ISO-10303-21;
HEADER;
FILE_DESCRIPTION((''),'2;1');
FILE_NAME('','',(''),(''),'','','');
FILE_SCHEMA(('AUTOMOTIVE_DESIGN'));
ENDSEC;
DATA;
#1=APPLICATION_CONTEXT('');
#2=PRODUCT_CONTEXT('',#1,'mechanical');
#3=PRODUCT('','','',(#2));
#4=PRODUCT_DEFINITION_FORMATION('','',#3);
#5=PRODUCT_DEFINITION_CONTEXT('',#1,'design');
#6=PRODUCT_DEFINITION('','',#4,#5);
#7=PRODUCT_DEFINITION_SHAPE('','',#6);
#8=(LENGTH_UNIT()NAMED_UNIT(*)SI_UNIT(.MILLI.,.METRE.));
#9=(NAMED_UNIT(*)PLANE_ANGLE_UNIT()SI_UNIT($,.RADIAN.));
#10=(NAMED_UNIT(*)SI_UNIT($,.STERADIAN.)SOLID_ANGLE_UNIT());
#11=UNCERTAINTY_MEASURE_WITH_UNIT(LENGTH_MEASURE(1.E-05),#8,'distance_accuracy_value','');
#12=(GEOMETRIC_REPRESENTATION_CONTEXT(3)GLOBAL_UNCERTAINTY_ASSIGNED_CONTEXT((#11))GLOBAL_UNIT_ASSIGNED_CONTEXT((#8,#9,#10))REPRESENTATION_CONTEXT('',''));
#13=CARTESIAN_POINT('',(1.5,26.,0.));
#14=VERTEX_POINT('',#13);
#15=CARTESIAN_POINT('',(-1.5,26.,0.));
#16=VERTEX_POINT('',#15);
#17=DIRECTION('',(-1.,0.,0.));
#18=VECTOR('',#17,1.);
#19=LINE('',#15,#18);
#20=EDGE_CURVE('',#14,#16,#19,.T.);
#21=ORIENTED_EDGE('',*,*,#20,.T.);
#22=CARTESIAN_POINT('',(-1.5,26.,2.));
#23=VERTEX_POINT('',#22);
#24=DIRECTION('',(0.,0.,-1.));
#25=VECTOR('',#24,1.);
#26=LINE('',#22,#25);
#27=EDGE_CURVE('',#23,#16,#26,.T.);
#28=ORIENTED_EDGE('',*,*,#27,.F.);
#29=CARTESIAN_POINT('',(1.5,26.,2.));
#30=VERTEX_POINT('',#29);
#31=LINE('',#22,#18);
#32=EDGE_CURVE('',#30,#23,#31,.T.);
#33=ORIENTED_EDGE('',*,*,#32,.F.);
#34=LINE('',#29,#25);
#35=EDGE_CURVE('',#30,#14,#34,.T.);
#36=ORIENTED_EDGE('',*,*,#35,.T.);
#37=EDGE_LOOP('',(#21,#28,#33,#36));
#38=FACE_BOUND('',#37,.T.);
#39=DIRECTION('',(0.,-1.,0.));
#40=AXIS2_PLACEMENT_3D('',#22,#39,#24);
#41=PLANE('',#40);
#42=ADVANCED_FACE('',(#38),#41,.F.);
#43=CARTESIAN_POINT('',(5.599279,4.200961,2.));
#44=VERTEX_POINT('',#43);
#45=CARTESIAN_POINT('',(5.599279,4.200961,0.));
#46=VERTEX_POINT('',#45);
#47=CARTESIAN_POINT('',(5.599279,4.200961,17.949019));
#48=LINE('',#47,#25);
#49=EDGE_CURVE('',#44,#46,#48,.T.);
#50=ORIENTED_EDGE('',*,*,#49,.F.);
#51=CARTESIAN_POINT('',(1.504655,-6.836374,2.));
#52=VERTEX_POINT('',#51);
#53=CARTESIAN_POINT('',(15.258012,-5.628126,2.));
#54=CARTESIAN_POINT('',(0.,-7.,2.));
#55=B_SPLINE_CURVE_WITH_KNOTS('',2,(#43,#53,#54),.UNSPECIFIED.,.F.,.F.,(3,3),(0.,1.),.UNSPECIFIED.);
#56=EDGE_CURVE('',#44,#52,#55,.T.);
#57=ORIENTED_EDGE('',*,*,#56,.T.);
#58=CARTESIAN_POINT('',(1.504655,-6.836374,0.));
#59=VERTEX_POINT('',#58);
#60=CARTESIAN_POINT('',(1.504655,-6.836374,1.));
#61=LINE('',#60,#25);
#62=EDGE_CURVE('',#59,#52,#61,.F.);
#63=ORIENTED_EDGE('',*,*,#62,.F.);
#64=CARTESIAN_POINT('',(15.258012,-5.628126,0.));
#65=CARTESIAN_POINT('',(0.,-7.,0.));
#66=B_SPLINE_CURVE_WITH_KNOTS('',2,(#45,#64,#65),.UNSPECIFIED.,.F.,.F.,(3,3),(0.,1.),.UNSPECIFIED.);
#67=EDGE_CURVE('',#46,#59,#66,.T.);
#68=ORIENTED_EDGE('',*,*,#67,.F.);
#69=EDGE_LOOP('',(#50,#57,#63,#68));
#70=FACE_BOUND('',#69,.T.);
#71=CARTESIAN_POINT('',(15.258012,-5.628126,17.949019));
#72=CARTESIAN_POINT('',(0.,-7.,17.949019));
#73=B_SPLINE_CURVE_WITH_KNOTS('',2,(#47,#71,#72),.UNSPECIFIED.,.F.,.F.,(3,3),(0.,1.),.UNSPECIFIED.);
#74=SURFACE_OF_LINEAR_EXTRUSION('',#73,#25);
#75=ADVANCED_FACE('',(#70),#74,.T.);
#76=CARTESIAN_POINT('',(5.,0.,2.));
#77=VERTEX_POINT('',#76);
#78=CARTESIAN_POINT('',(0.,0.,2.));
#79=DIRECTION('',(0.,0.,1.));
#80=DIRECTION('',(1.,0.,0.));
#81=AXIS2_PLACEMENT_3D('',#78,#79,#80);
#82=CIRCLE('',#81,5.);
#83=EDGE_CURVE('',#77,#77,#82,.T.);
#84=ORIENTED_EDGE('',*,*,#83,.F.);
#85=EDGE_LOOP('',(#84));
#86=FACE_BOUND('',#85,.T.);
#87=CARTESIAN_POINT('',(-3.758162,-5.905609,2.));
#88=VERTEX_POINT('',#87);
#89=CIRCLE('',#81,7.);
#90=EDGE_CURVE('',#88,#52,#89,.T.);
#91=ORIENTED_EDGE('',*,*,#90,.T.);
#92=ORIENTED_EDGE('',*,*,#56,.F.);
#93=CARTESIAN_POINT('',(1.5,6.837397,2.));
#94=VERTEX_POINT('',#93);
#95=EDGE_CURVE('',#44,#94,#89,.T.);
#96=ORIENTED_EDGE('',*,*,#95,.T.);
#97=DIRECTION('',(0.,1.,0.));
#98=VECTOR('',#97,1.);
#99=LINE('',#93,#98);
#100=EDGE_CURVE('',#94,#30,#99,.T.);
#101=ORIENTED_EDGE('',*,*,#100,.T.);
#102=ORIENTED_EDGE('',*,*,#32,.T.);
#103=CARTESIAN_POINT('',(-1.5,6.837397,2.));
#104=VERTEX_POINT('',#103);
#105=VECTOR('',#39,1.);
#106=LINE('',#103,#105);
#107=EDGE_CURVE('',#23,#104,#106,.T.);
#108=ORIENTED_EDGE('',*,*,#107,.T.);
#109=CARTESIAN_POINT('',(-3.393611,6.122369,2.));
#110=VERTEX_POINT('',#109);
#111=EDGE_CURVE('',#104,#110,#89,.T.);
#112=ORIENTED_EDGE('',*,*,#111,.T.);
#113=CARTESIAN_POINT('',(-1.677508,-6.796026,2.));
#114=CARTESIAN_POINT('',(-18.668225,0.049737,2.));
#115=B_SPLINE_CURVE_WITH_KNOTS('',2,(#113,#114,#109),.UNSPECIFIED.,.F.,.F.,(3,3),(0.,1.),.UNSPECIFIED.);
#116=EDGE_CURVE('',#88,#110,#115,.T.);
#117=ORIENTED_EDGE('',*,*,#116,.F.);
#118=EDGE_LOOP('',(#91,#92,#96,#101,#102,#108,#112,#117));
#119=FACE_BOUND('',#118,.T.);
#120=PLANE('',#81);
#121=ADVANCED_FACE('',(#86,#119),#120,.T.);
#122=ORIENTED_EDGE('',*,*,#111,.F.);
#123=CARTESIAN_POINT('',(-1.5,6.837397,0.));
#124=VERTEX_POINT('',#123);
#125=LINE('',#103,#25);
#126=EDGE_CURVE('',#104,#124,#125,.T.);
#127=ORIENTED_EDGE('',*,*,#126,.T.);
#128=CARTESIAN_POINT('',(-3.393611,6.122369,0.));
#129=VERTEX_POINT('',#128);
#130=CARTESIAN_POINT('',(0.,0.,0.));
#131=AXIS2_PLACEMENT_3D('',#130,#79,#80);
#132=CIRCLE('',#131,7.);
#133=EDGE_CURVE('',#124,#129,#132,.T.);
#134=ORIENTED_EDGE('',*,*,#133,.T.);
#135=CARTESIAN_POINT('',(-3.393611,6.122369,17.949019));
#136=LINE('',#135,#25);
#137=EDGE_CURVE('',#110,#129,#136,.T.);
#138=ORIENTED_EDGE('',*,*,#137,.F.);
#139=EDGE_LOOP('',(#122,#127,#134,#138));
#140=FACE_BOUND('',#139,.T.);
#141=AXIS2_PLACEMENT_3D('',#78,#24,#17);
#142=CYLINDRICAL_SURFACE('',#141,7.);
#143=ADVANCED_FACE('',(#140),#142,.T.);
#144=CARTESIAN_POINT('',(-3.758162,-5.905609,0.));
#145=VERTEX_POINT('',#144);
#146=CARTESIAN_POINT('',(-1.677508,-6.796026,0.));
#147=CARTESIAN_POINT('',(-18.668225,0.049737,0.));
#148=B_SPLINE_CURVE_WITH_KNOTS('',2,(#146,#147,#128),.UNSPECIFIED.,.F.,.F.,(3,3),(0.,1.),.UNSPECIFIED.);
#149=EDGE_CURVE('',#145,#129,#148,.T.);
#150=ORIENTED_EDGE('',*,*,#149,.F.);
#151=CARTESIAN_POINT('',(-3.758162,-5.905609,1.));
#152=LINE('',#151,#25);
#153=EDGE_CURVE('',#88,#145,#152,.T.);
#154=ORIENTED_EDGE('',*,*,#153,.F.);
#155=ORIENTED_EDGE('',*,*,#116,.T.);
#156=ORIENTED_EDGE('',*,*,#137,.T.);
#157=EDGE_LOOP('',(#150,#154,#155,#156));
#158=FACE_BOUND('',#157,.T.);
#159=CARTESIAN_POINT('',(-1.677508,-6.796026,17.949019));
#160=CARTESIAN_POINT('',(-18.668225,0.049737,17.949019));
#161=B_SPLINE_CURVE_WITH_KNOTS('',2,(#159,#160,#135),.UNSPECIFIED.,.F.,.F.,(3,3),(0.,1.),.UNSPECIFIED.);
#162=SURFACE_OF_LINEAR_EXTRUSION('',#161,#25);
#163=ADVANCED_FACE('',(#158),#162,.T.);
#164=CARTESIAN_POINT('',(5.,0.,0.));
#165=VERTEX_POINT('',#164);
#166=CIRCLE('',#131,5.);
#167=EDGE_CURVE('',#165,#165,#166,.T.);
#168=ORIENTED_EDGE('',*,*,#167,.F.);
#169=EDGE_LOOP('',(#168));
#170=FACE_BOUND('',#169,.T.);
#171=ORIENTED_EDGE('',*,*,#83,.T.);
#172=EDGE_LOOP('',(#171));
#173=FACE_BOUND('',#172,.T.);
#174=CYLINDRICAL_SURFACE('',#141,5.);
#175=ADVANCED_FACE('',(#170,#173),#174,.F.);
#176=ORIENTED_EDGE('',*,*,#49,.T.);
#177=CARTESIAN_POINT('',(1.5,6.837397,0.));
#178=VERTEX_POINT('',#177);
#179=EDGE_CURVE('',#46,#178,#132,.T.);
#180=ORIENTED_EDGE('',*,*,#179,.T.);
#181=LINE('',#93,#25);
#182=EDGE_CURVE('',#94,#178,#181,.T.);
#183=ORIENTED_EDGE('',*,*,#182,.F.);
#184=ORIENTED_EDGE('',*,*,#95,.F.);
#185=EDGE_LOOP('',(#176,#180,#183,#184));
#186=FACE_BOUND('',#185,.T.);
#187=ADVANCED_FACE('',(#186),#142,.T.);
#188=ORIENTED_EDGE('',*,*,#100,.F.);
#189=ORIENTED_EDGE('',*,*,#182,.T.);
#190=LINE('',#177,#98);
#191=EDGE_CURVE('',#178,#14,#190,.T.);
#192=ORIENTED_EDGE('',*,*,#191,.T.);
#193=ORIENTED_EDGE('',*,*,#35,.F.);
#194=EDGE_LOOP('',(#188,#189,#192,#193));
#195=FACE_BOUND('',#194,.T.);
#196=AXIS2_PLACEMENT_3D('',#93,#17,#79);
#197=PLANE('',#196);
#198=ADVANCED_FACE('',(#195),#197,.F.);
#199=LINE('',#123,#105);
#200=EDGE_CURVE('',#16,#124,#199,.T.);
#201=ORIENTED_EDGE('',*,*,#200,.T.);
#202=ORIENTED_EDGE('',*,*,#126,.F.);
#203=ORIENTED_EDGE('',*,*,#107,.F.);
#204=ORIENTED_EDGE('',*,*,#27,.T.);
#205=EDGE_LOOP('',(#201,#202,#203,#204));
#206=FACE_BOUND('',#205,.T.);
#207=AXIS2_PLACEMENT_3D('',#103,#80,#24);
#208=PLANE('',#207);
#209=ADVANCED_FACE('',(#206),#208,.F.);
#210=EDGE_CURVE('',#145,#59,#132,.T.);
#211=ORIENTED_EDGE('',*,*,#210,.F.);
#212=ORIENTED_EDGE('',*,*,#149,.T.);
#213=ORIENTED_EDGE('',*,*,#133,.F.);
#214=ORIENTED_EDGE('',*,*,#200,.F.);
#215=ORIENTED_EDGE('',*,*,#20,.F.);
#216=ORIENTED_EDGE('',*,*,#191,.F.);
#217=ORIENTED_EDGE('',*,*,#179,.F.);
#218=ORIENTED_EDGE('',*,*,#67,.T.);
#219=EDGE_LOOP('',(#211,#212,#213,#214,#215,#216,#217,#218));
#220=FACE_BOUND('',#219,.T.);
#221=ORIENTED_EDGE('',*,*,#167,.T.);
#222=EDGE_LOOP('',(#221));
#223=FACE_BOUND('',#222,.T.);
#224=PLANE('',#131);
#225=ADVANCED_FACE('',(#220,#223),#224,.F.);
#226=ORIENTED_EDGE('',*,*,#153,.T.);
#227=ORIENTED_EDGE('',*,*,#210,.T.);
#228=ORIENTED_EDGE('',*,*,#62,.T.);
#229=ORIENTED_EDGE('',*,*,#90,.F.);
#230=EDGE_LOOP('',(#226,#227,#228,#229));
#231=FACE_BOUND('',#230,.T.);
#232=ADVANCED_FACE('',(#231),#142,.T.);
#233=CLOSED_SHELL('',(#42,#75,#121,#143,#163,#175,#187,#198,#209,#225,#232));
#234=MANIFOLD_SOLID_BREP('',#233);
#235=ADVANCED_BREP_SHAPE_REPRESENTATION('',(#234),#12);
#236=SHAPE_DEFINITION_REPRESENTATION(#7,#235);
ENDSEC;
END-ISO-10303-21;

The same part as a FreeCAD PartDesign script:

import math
import FreeCAD as App
import Part
import Sketcher
Q = App.Units.Quantity

doc = App.newDocument("Part")
body = doc.addObject("PartDesign::Body", "Body")

# Sketch on XY plane
sketch1 = body.newObject("Sketcher::SketchObject", "Sketch")
sketch1.AttachmentSupport = (doc.getObject("XY_Plane"), [""])
sketch1.MapMode = "FlatFace"
sketch1.addGeometry(Part.LineSegment(App.Vector(-1.5, 26, 0), App.Vector(-1.5, 6.8, 0)), False)
sketch1.addGeometry(Part.ArcOfCircle(Part.Circle(App.Vector(0, 0, 0), App.Vector(0, 0, 1), 7), math.radians(102), math.radians(438)), False)
sketch1.addGeometry(Part.LineSegment(App.Vector(1.5, 6.8, 0), App.Vector(1.5, 26, 0)), False)
sketch1.addGeometry(Part.LineSegment(App.Vector(1.5, 26, 0), App.Vector(-1.5, 26, 0)), False)
sketch1.addGeometry(Part.Circle(App.Vector(0, 0, 0), App.Vector(0, 0, 1), 5), False)
sketch1.addConstraint(Sketcher.Constraint("Coincident", 0, 2, 1, 1))
sketch1.addConstraint(Sketcher.Constraint("Coincident", 1, 2, 2, 1))
sketch1.addConstraint(Sketcher.Constraint("Coincident", 2, 2, 3, 1))
sketch1.addConstraint(Sketcher.Constraint("Coincident", 3, 2, 0, 1))
sketch1.addConstraint(Sketcher.Constraint("Vertical", 0))
sketch1.addConstraint(Sketcher.Constraint("Vertical", 2))
sketch1.addConstraint(Sketcher.Constraint("Horizontal", 3))
sketch1.addConstraint(Sketcher.Constraint("Coincident", 1, 3, -1, 1))
sketch1.addConstraint(Sketcher.Constraint("Coincident", 4, 3, -1, 1))
sketch1.addConstraint(Sketcher.Constraint("Horizontal", 0, 2, 1, 2))
sketch1.addConstraint(Sketcher.Constraint("Diameter", 4, Q("10 mm")))
sketch1.addConstraint(Sketcher.Constraint("Radius", 1, Q("7 mm")))
sketch1.addConstraint(Sketcher.Constraint("DistanceX", 3, 2, 3, 1, Q("3 mm")))
sketch1.addConstraint(Sketcher.Constraint("DistanceY", -1, 1, 2, 2, Q("26 mm")))
pad1 = body.newObject("PartDesign::Pad", "Pad")
pad1.Profile = sketch1
pad1.Length = 2

# Sketch on XY plane
sketch2 = body.newObject("Sketcher::SketchObject", "Sketch001")
sketch2.AttachmentSupport = (doc.getObject("XY_Plane"), [""])
sketch2.MapMode = "FlatFace"
sketch2.addGeometry(Part.BSplineCurve([App.Vector(5.599279, 4.200961, 0), App.Vector(15.258012, -5.628126, 0), App.Vector(0, -7, 0)], [3, 3], [0, 1], False, 2, [1, 1, 1], False), False)
sketch2.addGeometry(Part.BSplineCurve([App.Vector(5.599279, 4.200961, 0), App.Vector(7.981604, -4.535814, 0), App.Vector(0, -7, 0)], [3, 3], [0, 1], False, 2, [1, 1, 1], False), False)
sketch2.addGeometry(Part.BSplineCurve([App.Vector(-3.393611, 6.122369, 0), App.Vector(-18.668225, 0.049737, 0), App.Vector(-1.677508, -6.796026, 0)], [3, 3], [0, 1], False, 2, [1, 1, 1], False), False)
sketch2.addGeometry(Part.BSplineCurve([App.Vector(-3.393611, 6.122369, 0), App.Vector(-10.124192, -1.414313, 0), App.Vector(-1.677508, -6.796026, 0)], [3, 3], [0, 1], False, 2, [1, 1, 1], False), False)
sketch2.addConstraint(Sketcher.Constraint("Block", 0))
sketch2.addConstraint(Sketcher.Constraint("Block", 1))
sketch2.addConstraint(Sketcher.Constraint("Block", 2))
sketch2.addConstraint(Sketcher.Constraint("Block", 3))
pad2 = body.newObject("PartDesign::Pad", "Pad001")
pad2.Profile = sketch2
pad2.Length = 2

doc.recompute()
